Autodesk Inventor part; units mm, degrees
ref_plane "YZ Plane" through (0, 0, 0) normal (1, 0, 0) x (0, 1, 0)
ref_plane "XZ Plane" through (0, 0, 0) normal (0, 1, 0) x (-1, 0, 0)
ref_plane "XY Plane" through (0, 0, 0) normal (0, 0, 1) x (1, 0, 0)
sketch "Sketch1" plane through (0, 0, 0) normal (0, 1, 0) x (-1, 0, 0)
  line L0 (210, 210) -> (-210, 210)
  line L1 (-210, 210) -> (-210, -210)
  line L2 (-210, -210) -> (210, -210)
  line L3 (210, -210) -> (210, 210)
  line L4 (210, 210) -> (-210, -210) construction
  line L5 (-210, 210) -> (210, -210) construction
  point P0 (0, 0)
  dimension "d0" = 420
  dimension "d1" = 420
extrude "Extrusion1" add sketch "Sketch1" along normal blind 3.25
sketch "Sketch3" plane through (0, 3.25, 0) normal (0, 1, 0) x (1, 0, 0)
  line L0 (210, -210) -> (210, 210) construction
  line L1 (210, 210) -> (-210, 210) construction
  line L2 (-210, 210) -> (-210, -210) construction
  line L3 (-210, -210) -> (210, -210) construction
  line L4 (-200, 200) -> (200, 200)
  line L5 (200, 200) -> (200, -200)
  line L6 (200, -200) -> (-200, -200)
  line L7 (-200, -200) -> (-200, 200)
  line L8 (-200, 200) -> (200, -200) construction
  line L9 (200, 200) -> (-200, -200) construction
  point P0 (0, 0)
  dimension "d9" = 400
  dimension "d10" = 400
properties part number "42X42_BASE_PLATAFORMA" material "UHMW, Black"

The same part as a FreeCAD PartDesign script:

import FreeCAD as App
import Part
import Sketcher
from FreeCAD import Vector


def add_polygon(sketch, points):
    """Adds a closed chain of lines whose ends are joined by coincident constraints."""
    first, n = sketch.GeometryCount, len(points)
    for a, b in zip(points, points[1:] + points[:1]):
        sketch.addGeometry(Part.LineSegment(App.Vector(*a, 0), App.Vector(*b, 0)), False)
    for i in range(n):
        sketch.addConstraint(Sketcher.Constraint("Coincident", first + i, 2, first + (i + 1) % n, 1))

doc = App.newDocument("Part")
params = doc.addObject("Spreadsheet::Sheet", "Params")
for row, (alias, value) in enumerate([
    ("sketch1_width", "420 mm"),
    ("pad1_length", "3.25 mm"),
], start=1):
    params.set(f"A{row}", alias)
    params.set(f"B{row}", "=" + value)
    params.setAlias(f"B{row}", alias)

body = doc.addObject("PartDesign::Body", "Body")

# Sketch on XZ plane
sketch1 = doc.addObject("Sketcher::SketchObject", "Sketch")
body.addObject(sketch1)
sketch1.AttachmentSupport = (doc.XZ_Plane, [""])
sketch1.MapMode = "FlatFace"
add_polygon(sketch1, [(-210, -210), (-210, 210), (210, 210), (210, -210)])  # lines 0-3
sketch1.addConstraint([
    Sketcher.Constraint("Vertical", 0),
    Sketcher.Constraint("Horizontal", 1),
    Sketcher.Constraint("Vertical", 2),
    Sketcher.Constraint("Horizontal", 3),
    Sketcher.Constraint("Symmetric", 0, 2, 2, 2, -1, 1),
    Sketcher.Constraint("Equal", 3, 0),
    Sketcher.Constraint("DistanceX", 1, 1, 1, 2, 420.0),
])
sketch1.setExpression("Constraints[10]", "Params.sketch1_width")
pad1 = doc.addObject("PartDesign::Pad", "Pad")
body.addObject(pad1)
pad1.Profile = sketch1
pad1.setExpression("Length", "Params.pad1_length")
pad1.Reversed = True

doc.recompute()
